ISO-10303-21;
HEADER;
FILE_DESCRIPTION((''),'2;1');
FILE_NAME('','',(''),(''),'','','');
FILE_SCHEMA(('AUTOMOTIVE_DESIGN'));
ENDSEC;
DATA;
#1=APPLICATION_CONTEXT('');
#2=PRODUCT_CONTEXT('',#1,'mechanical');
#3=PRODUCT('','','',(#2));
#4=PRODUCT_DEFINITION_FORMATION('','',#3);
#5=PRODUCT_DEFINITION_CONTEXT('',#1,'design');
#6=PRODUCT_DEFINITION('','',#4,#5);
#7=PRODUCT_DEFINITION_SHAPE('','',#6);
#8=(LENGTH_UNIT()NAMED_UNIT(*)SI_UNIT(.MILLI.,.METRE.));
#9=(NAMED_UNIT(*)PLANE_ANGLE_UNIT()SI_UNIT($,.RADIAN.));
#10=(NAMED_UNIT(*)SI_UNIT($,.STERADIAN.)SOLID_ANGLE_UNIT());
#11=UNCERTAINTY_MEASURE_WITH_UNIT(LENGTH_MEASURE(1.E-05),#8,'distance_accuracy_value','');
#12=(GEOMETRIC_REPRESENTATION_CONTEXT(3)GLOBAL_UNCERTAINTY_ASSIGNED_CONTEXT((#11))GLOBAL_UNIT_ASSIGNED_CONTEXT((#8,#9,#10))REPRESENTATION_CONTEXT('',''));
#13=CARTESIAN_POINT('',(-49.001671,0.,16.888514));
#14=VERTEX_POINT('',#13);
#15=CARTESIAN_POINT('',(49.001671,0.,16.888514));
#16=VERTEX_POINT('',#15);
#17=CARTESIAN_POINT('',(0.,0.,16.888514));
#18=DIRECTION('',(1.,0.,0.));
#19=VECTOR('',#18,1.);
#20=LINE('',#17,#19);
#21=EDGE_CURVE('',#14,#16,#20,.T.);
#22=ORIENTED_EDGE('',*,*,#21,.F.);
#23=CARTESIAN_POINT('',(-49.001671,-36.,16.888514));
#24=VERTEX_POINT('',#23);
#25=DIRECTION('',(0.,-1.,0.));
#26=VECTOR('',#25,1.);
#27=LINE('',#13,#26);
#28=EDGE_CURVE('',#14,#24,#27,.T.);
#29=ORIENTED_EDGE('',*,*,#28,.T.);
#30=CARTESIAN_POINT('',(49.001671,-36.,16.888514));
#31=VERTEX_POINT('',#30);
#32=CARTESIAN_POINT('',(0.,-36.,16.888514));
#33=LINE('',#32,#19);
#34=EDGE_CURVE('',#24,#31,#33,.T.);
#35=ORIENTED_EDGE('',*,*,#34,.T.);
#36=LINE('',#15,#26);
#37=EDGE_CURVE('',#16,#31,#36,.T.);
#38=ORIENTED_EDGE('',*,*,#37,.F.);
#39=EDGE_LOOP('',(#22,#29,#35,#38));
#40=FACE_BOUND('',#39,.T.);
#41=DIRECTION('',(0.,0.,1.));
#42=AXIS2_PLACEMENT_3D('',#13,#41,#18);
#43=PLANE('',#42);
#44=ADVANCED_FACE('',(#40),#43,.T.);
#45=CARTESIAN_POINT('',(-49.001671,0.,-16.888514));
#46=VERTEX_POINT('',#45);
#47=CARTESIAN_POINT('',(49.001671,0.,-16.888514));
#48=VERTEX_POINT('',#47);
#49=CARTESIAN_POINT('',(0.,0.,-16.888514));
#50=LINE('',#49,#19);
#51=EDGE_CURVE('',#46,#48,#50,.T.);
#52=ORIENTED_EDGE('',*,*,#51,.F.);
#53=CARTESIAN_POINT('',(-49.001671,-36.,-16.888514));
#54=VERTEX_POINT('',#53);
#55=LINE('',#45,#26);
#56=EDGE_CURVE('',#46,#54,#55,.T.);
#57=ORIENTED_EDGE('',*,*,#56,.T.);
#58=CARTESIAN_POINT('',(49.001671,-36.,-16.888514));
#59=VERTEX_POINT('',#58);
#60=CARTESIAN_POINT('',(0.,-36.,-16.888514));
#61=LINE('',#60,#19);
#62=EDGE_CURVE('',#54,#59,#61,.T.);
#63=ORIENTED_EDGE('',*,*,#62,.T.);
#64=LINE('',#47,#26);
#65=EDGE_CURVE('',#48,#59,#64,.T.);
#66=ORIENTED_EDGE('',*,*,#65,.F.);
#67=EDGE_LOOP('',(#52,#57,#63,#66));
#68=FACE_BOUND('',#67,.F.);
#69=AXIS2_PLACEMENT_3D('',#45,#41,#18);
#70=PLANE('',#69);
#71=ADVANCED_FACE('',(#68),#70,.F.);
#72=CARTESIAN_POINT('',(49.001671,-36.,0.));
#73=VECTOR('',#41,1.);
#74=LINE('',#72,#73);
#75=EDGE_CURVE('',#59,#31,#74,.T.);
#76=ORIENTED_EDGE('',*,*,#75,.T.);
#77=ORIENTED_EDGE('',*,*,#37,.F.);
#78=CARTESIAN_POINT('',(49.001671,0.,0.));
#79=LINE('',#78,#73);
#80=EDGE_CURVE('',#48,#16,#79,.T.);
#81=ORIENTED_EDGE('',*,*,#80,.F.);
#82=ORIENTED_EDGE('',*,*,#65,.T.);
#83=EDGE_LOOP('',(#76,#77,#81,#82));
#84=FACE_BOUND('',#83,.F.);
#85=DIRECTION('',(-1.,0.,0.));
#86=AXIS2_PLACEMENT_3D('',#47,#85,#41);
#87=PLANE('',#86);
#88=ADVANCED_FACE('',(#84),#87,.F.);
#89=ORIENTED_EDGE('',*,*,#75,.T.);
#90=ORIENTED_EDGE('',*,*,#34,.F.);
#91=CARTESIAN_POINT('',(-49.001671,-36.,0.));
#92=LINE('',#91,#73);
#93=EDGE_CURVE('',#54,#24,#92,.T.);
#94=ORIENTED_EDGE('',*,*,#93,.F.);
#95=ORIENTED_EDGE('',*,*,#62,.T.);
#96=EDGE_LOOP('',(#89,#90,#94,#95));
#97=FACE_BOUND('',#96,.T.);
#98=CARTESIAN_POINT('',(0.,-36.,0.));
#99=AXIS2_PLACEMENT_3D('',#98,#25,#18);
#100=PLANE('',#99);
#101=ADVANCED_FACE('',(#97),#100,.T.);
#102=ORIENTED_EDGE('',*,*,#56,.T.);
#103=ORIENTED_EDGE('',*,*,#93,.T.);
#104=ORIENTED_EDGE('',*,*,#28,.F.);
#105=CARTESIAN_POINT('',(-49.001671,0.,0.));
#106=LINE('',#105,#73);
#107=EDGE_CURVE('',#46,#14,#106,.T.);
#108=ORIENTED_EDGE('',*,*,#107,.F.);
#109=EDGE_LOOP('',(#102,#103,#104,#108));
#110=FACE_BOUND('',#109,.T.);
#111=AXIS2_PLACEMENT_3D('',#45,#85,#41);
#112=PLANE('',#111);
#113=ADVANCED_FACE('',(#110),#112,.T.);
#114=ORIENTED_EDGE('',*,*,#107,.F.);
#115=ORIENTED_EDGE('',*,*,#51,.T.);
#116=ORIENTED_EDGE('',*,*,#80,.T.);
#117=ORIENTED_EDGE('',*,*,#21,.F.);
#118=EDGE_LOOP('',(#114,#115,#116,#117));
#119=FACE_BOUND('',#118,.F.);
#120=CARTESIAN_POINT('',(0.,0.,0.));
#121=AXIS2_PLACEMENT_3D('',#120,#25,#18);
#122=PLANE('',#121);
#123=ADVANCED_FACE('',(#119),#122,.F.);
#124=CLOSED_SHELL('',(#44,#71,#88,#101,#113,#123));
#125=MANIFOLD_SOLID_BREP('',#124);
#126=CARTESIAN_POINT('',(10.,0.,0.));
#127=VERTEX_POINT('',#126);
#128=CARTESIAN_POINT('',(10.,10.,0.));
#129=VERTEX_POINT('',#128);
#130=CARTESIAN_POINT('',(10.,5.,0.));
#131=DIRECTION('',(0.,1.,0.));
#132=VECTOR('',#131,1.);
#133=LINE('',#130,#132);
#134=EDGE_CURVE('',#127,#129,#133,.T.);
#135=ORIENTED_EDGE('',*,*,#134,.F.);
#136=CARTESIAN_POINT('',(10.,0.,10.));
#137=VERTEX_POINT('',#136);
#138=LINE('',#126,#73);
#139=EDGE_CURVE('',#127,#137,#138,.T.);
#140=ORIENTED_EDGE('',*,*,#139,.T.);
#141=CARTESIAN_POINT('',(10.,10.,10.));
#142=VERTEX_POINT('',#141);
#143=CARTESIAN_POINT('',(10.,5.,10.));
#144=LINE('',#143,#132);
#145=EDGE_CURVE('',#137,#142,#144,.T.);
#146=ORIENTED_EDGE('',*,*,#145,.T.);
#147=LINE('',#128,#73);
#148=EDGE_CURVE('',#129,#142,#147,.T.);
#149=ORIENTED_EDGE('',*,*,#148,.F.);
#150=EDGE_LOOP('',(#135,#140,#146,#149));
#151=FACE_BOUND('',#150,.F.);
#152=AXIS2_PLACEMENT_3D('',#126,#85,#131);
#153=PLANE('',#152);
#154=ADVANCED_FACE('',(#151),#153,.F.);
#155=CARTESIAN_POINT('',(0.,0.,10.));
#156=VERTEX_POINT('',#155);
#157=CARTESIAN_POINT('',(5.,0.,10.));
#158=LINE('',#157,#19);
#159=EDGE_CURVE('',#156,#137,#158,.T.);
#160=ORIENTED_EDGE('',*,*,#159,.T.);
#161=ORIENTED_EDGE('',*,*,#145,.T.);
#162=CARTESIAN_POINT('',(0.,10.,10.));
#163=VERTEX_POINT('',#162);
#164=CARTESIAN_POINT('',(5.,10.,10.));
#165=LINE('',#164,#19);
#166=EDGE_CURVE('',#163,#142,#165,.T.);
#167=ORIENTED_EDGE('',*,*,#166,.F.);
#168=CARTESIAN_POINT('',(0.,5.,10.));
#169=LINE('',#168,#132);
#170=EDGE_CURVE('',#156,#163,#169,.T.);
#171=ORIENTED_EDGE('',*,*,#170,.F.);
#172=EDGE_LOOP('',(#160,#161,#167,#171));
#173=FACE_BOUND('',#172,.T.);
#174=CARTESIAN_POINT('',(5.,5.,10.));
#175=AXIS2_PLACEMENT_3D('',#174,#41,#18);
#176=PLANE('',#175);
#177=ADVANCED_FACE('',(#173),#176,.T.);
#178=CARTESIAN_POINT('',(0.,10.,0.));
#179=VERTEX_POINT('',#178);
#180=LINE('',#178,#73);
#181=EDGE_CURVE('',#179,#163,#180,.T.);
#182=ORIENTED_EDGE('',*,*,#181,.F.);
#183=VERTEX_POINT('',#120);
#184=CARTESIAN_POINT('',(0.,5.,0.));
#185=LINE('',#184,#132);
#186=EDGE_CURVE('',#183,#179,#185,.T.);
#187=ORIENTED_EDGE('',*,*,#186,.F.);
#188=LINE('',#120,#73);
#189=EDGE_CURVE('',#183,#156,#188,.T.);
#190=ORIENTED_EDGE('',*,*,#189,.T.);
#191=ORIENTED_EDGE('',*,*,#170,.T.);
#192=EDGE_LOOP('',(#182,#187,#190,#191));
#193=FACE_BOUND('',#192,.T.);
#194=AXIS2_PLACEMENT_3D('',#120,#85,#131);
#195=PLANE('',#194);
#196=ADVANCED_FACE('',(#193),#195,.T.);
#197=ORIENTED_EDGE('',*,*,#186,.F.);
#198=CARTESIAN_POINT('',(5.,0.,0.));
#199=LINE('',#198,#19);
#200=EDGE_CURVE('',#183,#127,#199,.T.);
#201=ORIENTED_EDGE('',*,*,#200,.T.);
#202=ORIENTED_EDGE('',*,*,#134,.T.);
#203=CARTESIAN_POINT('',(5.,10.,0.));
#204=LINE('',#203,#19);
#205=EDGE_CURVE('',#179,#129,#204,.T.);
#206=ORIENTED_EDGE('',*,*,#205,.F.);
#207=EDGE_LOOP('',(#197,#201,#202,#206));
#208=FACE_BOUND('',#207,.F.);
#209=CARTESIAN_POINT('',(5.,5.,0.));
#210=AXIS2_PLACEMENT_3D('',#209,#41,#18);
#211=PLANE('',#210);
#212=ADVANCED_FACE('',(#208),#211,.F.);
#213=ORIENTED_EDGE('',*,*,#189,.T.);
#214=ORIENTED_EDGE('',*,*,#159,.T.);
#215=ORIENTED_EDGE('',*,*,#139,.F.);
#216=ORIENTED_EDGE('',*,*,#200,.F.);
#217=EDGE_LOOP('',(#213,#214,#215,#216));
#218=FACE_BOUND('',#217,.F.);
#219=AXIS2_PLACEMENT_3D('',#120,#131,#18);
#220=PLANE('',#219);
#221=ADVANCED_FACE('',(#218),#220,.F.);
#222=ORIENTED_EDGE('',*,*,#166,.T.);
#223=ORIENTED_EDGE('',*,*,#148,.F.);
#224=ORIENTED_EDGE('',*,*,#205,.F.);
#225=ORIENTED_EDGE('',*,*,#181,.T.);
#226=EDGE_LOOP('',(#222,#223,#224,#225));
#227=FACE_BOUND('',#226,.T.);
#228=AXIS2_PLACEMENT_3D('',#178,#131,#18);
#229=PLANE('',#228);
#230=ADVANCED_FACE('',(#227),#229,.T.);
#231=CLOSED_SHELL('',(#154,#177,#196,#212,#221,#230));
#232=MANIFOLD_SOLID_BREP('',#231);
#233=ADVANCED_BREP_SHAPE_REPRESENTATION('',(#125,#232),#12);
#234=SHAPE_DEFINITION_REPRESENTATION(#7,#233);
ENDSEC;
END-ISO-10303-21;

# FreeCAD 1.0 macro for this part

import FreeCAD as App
import Part
import Sketcher

doc = App.newDocument("Part")
params = doc.addObject("Spreadsheet::Sheet", "Params")
for row, (alias, value) in enumerate([
    ("pad1_length", "36 mm"),
    ("sketch2_width", "10 mm"),
    ("pad2_length", "10 mm"),
], start=1):
    params.set(f"A{row}", alias)
    params.set(f"B{row}", "=" + value)
    params.setAlias(f"B{row}", alias)

body = doc.addObject("PartDesign::Body", "Body")

sketch1 = body.newObject("Sketcher::SketchObject", "Sketch")
sketch1.AttachmentSupport = (doc.getObject("XZ_Plane"), [""])
sketch1.MapMode = "FlatFace"
sketch1.addGeometry([
    Part.LineSegment(App.Vector(-49.001671, 16.888514, 0), App.Vector(-49.001671, -16.888514, 0)),
    Part.LineSegment(App.Vector(-49.001671, -16.888514, 0), App.Vector(49.001671, -16.888514, 0)),
    Part.LineSegment(App.Vector(49.001671, -16.888514, 0), App.Vector(49.001671, 16.888514, 0)),
    Part.LineSegment(App.Vector(49.001671, 16.888514, 0), App.Vector(-49.001671, 16.888514, 0)),
], False)
sketch1.addConstraint([
    Sketcher.Constraint("Coincident", 0, 2, 1, 1),
    Sketcher.Constraint("Coincident", 1, 2, 2, 1),
    Sketcher.Constraint("Coincident", 2, 2, 3, 1),
    Sketcher.Constraint("Coincident", 3, 2, 0, 1),
    Sketcher.Constraint("Vertical", 0),
    Sketcher.Constraint("Horizontal", 1),
    Sketcher.Constraint("Vertical", 2),
    Sketcher.Constraint("Horizontal", 3),
    Sketcher.Constraint("Symmetric", 0, 2, 2, 2, -1, 1),
    Sketcher.Constraint("DistanceX", 1, 1, 1, 2, 98.003342),
    Sketcher.Constraint("DistanceY", 0, 2, 0, 1, 33.777028),
])
pad1 = body.newObject("PartDesign::Pad", "Pad")
pad1.Profile = sketch1
pad1.setExpression("Length", "Params.pad1_length")
body2 = doc.addObject("PartDesign::Body", "Body001")

sketch2 = body2.newObject("Sketcher::SketchObject", "Sketch001")
sketch2.AttachmentSupport = (doc.getObject("XY_Plane001"), [""])
sketch2.MapMode = "FlatFace"
sketch2.addGeometry([
    Part.LineSegment(App.Vector(0, 10, 0), App.Vector(0, 0, 0)),
    Part.LineSegment(App.Vector(0, 0, 0), App.Vector(10, 0, 0)),
    Part.LineSegment(App.Vector(10, 0, 0), App.Vector(10, 10, 0)),
    Part.LineSegment(App.Vector(10, 10, 0), App.Vector(0, 10, 0)),
], False)
sketch2.addConstraint([
    Sketcher.Constraint("Coincident", 0, 2, 1, 1),
    Sketcher.Constraint("Coincident", 1, 2, 2, 1),
    Sketcher.Constraint("Coincident", 2, 2, 3, 1),
    Sketcher.Constraint("Coincident", 3, 2, 0, 1),
    Sketcher.Constraint("Vertical", 0),
    Sketcher.Constraint("Horizontal", 1),
    Sketcher.Constraint("Vertical", 2),
    Sketcher.Constraint("Horizontal", 3),
    Sketcher.Constraint("Coincident", 0, 2, -1, 1),
    Sketcher.Constraint("Equal", 3, 0),
    Sketcher.Constraint("DistanceX", 1, 1, 1, 2, 10.0),
])
sketch2.setExpression("Constraints[10]", "Params.sketch2_width")
pad2 = body2.newObject("PartDesign::Pad", "Pad001")
pad2.Profile = sketch2
pad2.setExpression("Length", "Params.pad2_length")

doc.recompute()
